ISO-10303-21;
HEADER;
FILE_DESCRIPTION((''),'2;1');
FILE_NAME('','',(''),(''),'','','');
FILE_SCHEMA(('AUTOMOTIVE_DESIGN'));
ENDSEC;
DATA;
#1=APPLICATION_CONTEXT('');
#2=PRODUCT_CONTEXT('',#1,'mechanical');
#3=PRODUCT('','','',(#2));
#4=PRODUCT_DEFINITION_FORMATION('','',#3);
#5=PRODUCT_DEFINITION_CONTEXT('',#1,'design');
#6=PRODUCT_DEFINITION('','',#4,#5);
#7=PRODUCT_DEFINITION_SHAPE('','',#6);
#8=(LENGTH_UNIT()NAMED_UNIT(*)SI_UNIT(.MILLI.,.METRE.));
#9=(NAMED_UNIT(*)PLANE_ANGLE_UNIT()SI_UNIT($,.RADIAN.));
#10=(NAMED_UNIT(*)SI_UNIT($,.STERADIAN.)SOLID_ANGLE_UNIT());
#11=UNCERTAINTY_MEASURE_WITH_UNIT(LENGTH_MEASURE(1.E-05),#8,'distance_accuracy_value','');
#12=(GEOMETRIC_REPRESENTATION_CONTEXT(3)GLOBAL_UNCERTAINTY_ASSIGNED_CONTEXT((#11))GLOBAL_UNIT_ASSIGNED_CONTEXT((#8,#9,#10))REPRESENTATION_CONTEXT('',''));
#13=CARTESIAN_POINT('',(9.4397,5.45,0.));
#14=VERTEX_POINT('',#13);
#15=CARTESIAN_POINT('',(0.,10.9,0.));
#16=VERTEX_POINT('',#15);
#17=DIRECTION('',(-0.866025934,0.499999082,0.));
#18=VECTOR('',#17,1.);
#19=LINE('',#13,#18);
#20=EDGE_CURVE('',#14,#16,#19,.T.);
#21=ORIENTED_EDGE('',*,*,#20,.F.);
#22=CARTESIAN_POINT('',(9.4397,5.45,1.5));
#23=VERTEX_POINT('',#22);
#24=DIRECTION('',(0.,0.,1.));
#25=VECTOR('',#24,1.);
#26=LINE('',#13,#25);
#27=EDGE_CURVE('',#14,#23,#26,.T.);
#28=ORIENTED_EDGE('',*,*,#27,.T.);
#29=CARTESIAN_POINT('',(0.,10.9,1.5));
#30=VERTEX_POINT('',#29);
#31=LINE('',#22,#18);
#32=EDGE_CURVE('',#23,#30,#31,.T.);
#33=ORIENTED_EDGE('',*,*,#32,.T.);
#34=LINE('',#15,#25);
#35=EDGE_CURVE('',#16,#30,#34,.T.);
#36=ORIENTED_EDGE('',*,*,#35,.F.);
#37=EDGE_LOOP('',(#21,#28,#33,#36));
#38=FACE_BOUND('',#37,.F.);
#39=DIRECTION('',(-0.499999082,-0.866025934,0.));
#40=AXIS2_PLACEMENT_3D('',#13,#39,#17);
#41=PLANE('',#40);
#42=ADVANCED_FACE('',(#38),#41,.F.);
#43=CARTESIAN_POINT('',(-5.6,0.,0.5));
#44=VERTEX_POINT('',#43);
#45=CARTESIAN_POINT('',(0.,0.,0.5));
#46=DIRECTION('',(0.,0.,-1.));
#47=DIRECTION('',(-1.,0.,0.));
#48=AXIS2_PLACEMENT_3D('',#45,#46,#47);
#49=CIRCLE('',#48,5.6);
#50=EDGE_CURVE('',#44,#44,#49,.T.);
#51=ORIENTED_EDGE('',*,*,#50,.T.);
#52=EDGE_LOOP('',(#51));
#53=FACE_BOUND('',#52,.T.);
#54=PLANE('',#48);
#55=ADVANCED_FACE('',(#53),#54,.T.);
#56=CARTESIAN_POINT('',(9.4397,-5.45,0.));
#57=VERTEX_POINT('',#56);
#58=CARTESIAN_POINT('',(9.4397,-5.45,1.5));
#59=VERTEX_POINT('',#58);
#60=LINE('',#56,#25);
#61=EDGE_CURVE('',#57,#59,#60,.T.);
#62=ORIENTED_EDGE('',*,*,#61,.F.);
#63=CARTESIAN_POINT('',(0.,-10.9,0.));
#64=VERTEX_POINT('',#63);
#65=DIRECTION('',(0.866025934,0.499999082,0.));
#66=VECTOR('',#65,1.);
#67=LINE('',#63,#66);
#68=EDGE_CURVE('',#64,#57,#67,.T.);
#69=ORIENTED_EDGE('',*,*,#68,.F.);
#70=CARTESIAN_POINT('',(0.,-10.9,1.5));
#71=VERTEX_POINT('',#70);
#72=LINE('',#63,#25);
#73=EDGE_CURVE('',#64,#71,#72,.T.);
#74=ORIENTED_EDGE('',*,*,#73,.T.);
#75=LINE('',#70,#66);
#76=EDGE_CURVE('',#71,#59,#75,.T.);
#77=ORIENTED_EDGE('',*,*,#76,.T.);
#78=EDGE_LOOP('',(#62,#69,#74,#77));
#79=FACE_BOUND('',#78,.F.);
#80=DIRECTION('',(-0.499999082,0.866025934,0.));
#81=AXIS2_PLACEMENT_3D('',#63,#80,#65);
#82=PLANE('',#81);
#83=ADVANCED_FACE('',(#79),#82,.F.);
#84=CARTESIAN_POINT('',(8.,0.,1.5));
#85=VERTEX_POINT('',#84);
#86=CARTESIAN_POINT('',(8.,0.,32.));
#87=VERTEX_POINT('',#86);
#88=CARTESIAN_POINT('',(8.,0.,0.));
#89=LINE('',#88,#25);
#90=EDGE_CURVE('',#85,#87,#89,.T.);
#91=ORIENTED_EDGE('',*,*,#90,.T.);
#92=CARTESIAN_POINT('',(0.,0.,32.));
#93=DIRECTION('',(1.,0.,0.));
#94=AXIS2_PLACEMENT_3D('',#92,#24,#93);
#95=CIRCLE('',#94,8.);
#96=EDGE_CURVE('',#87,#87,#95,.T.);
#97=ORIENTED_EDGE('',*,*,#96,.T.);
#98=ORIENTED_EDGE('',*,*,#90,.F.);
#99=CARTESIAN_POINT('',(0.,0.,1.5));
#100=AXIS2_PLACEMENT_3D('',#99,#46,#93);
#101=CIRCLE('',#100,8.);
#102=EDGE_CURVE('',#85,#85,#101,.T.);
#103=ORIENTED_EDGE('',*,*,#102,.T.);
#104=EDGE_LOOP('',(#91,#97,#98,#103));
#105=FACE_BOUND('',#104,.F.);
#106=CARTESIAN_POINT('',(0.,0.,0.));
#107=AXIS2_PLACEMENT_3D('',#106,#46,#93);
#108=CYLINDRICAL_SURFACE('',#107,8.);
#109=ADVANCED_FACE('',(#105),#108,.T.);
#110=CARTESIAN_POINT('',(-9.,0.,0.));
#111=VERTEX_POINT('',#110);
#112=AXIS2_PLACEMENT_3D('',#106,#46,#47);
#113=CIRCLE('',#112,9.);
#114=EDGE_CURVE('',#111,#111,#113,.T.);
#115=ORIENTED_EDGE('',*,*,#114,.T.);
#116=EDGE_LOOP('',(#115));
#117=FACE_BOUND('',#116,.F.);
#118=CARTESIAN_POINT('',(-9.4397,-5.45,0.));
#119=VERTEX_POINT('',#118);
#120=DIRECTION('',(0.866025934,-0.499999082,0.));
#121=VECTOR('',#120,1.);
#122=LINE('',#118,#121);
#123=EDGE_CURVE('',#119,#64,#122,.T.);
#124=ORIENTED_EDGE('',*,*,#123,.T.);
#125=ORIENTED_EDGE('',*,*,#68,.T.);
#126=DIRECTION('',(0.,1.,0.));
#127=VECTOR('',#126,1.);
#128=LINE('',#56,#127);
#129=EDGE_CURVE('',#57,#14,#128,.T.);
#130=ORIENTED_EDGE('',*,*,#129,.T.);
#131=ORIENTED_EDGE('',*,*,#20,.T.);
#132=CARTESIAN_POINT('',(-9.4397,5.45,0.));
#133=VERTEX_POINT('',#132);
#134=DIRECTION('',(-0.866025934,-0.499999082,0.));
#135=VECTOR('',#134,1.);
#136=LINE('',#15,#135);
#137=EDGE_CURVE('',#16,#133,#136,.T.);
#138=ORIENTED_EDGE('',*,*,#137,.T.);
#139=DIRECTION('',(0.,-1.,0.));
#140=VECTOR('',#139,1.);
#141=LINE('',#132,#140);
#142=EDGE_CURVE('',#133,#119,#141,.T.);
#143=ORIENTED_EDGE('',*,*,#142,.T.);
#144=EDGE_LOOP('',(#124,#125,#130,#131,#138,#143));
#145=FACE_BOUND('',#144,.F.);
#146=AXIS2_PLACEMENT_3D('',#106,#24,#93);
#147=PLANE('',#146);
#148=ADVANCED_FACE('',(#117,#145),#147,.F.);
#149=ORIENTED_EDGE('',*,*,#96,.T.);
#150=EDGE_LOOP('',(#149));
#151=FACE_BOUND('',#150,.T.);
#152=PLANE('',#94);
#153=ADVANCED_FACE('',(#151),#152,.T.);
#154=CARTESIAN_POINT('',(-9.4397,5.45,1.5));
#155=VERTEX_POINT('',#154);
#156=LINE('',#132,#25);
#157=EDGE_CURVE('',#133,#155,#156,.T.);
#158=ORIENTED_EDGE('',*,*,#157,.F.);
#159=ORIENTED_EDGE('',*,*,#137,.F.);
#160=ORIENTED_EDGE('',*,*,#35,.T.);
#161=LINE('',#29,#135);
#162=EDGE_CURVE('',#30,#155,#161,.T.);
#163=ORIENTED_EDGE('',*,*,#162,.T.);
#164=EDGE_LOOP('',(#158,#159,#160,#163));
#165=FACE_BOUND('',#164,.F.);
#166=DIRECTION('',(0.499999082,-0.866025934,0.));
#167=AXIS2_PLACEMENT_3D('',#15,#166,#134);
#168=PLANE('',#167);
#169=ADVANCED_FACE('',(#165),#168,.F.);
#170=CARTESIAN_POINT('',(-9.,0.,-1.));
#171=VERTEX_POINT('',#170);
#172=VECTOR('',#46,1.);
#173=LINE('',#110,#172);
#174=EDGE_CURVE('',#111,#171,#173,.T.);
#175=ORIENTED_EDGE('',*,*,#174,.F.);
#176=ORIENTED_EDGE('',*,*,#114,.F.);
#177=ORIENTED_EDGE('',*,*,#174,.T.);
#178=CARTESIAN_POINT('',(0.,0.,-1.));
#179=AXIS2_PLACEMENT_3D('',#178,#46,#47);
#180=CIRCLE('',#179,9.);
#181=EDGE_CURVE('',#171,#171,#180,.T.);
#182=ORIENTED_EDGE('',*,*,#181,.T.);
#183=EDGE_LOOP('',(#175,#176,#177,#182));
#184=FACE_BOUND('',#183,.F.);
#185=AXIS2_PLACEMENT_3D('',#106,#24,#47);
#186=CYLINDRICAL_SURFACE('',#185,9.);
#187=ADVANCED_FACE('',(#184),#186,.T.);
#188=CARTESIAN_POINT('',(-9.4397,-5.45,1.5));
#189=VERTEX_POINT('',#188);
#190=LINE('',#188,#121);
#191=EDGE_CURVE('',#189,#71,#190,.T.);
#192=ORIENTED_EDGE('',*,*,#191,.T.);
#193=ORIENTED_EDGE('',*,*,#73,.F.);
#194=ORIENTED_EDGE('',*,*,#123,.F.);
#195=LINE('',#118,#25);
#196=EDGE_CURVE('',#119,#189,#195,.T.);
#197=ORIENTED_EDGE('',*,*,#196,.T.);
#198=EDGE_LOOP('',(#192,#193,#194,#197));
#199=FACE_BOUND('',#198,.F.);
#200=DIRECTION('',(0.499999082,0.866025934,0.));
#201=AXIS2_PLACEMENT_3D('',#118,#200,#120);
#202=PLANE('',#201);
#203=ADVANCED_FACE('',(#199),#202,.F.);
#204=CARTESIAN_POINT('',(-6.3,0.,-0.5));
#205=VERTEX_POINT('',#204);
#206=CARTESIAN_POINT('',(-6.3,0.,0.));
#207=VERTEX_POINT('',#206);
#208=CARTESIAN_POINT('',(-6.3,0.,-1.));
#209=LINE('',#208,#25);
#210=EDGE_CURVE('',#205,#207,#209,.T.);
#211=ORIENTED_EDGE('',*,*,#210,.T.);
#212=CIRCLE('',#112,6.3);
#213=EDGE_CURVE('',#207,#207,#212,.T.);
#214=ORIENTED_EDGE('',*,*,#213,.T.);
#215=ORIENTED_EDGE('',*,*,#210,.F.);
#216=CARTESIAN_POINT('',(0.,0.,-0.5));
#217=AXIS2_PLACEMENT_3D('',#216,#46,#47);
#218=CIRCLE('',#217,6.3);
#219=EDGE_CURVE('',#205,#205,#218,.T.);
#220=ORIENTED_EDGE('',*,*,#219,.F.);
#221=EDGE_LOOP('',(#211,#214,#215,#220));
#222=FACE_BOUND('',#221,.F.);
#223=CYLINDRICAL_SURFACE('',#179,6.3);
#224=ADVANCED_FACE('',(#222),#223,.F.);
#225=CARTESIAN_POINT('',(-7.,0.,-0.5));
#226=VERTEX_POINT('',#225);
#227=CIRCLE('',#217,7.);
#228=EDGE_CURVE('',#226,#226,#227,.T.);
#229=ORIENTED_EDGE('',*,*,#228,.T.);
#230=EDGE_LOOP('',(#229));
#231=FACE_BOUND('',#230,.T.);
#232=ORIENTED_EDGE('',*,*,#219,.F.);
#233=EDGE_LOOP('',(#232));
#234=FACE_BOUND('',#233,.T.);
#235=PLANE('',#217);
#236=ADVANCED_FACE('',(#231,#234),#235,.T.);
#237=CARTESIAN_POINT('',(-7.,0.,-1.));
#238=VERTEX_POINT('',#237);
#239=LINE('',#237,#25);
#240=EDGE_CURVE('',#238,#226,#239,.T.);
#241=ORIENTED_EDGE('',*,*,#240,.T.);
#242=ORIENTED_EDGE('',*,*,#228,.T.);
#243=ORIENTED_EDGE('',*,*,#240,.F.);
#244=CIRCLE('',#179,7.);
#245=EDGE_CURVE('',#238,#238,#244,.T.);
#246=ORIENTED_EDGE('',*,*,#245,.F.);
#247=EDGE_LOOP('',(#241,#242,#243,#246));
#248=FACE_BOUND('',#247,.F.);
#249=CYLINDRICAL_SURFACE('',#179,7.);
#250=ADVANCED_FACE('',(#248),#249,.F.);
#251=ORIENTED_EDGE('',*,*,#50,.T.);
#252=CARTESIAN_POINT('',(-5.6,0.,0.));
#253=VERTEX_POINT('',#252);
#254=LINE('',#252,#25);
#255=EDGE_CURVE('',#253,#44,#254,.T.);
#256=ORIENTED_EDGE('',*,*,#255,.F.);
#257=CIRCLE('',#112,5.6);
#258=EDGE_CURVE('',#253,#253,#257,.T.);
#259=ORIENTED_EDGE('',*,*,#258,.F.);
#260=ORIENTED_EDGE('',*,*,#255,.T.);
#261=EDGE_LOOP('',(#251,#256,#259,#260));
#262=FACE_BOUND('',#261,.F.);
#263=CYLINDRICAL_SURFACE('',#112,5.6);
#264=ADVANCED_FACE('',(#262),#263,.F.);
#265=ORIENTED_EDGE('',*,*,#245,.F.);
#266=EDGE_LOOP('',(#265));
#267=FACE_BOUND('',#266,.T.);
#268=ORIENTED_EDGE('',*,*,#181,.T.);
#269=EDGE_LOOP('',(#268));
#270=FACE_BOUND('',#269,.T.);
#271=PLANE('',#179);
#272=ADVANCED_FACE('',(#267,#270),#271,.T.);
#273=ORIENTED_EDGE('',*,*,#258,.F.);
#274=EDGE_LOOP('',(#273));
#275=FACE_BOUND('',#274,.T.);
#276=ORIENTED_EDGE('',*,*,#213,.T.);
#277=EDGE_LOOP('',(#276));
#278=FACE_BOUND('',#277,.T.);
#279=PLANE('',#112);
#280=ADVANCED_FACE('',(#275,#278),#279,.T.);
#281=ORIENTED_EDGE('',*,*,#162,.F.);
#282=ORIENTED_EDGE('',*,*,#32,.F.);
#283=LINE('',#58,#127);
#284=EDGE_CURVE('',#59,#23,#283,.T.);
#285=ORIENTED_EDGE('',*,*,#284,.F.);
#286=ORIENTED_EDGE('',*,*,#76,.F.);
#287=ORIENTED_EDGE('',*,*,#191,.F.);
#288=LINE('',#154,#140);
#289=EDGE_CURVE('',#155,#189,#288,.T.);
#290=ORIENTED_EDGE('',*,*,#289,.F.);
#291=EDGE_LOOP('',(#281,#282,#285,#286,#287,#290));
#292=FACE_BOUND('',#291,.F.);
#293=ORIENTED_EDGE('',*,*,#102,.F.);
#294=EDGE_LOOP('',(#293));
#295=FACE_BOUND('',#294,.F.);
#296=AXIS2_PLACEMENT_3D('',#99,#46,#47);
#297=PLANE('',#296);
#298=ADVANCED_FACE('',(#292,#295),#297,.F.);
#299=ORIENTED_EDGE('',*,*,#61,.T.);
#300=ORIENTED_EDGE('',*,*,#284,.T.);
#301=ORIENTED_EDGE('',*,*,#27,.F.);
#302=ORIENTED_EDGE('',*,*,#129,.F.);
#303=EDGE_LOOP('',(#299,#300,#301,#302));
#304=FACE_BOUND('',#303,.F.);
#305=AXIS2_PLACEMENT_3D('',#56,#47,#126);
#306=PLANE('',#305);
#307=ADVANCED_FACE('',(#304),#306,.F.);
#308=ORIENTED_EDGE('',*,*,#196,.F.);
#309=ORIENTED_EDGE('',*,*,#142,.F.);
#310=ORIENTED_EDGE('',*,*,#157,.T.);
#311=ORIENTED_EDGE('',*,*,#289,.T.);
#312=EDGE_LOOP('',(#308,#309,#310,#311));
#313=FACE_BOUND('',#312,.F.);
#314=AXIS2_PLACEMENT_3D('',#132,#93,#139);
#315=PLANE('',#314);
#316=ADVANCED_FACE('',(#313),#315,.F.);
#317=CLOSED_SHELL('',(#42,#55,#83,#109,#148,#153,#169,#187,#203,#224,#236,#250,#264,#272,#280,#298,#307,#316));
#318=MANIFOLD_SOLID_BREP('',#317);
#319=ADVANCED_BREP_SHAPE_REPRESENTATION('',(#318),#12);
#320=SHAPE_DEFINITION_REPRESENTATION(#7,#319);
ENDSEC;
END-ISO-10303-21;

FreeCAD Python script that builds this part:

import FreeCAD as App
import Part
import Sketcher
from FreeCAD import Vector
Q = App.Units.Quantity

doc = App.newDocument("Part")
body = doc.addObject("PartDesign::Body", "Body")

# Sketch on XY plane
sketch1 = body.newObject("Sketcher::SketchObject", "Sketch")
sketch1.AttachmentSupport = (doc.getObject("XY_Plane"), [""])
sketch1.MapMode = "FlatFace"
sketch1.addGeometry(Part.Circle(Vector(0, 0, 0), Vector(0, 0, 1), 8), False)
sketch1.addConstraint([
    Sketcher.Constraint("Coincident", 0, 3, -1, 1),
    Sketcher.Constraint("Diameter", 0, Q("16 mm")),
])
pad1 = body.newObject("PartDesign::Pad", "Pad")
pad1.Profile = sketch1
pad1.Length = 32

# Sketch on XY plane
sketch2 = body.newObject("Sketcher::SketchObject", "Sketch001")
sketch2.AttachmentSupport = (doc.getObject("XY_Plane"), [""])
sketch2.MapMode = "FlatFace"
sketch2.addGeometry([
    Part.LineSegment(Vector(-9.4397, 5.45, 0), Vector(0, 10.9, 0)),  # 0
    Part.LineSegment(Vector(0, 10.9, 0), Vector(9.4397, 5.45, 0)),  # 1
    Part.LineSegment(Vector(9.4397, 5.45, 0), Vector(9.4397, -5.45, 0)),  # 2
    Part.LineSegment(Vector(9.4397, -5.45, 0), Vector(0, -10.9, 0)),  # 3
    Part.LineSegment(Vector(0, -10.9, 0), Vector(-9.4397, -5.45, 0)),  # 4
    Part.LineSegment(Vector(-9.4397, -5.45, 0), Vector(-9.4397, 5.45, 0)),  # 5
], False)
sketch2.addConstraint([
    Sketcher.Constraint("Coincident", 0, 2, 1, 1),
    Sketcher.Constraint("Coincident", 1, 2, 2, 1),
    Sketcher.Constraint("Coincident", 2, 2, 3, 1),
    Sketcher.Constraint("Coincident", 3, 2, 4, 1),
    Sketcher.Constraint("Coincident", 4, 2, 5, 1),
    Sketcher.Constraint("Coincident", 5, 2, 0, 1),
    Sketcher.Constraint("Vertical", 2),
    Sketcher.Constraint("Vertical", 5),
    Sketcher.Constraint("Symmetric", 0, 2, 3, 2, -1, 1),
    Sketcher.Constraint("Symmetric", 1, 2, 4, 2, -1, 1),
    Sketcher.Constraint("PointOnObject", 0, 2, -2),
    Sketcher.Constraint("Parallel", 0, 3),
    Sketcher.Constraint("Horizontal", 2, 2, 4, 2),
    Sketcher.Constraint("DistanceY", 3, 2, 0, 2, Q("21.8 mm")),
    Sketcher.Constraint("Angle", 0, Q("30 deg")),
    Sketcher.Constraint("DistanceY", 2, 2, 2, 1, Q("10.9 mm")),
])
pad2 = body.newObject("PartDesign::Pad", "Pad001")
pad2.Profile = sketch2
pad2.Length = 1.5

# Sketch on XY plane
sketch3 = body.newObject("Sketcher::SketchObject", "Sketch002")
sketch3.AttachmentSupport = (doc.getObject("XY_Plane"), [""])
sketch3.MapMode = "FlatFace"
sketch3.addGeometry(Part.Circle(Vector(0, 0, 0), Vector(0, 0, 1), 9), False)
sketch3.addConstraint([
    Sketcher.Constraint("Coincident", 0, 3, -1, 1),
    Sketcher.Constraint("Diameter", 0, Q("18 mm")),
])
pad3 = body.newObject("PartDesign::Pad", "Pad002")
pad3.Profile = sketch3
pad3.Length = 1
pad3.Reversed = True

# Sketch on XY plane
sketch4 = body.newObject("Sketcher::SketchObject", "Sketch003")
sketch4.AttachmentSupport = (doc.getObject("XY_Plane"), [""])
sketch4.MapMode = "FlatFace"
sketch4.AttachmentOffset = App.Placement(Vector(0, 0, -1), App.Rotation())
sketch4.addGeometry(Part.Circle(Vector(0, 0, 0), Vector(0, 0, 1), 6.3), False)
sketch4.addConstraint([
    Sketcher.Constraint("Coincident", 0, 3, -1, 1),
    Sketcher.Constraint("Diameter", 0, Q("12.6 mm")),
])
pocket1 = body.newObject("PartDesign::Pocket", "Pocket")
pocket1.Profile = sketch4
pocket1.Length = 1
pocket1.Reversed = True

# Sketch on XY plane
sketch5 = body.newObject("Sketcher::SketchObject", "Sketch004")
sketch5.AttachmentSupport = (doc.getObject("XY_Plane"), [""])
sketch5.MapMode = "FlatFace"
sketch5.addGeometry(Part.Circle(Vector(0, 0, 0), Vector(0, 0, 1), 5.6), False)
sketch5.addConstraint([
    Sketcher.Constraint("Coincident", 0, 3, -1, 1),
    Sketcher.Constraint("Diameter", 0, Q("11.2 mm")),
])
pocket2 = body.newObject("PartDesign::Pocket", "Pocket001")
pocket2.Profile = sketch5
pocket2.Length = 0.5
pocket2.Reversed = True

# Sketch on XY plane
sketch6 = body.newObject("Sketcher::SketchObject", "Sketch005")
sketch6.AttachmentSupport = (doc.getObject("XY_Plane"), [""])
sketch6.MapMode = "FlatFace"
sketch6.AttachmentOffset = App.Placement(Vector(0, 0, -1), App.Rotation())
sketch6.addGeometry(Part.Circle(Vector(0, 0, 0), Vector(0, 0, 1), 7), False)
sketch6.addConstraint([
    Sketcher.Constraint("Coincident", 0, 3, -1, 1),
    Sketcher.Constraint("Diameter", 0, Q("14 mm")),
])
pocket3 = body.newObject("PartDesign::Pocket", "Pocket002")
pocket3.Profile = sketch6
pocket3.Length = 0.5
pocket3.Reversed = True

doc.recompute()
